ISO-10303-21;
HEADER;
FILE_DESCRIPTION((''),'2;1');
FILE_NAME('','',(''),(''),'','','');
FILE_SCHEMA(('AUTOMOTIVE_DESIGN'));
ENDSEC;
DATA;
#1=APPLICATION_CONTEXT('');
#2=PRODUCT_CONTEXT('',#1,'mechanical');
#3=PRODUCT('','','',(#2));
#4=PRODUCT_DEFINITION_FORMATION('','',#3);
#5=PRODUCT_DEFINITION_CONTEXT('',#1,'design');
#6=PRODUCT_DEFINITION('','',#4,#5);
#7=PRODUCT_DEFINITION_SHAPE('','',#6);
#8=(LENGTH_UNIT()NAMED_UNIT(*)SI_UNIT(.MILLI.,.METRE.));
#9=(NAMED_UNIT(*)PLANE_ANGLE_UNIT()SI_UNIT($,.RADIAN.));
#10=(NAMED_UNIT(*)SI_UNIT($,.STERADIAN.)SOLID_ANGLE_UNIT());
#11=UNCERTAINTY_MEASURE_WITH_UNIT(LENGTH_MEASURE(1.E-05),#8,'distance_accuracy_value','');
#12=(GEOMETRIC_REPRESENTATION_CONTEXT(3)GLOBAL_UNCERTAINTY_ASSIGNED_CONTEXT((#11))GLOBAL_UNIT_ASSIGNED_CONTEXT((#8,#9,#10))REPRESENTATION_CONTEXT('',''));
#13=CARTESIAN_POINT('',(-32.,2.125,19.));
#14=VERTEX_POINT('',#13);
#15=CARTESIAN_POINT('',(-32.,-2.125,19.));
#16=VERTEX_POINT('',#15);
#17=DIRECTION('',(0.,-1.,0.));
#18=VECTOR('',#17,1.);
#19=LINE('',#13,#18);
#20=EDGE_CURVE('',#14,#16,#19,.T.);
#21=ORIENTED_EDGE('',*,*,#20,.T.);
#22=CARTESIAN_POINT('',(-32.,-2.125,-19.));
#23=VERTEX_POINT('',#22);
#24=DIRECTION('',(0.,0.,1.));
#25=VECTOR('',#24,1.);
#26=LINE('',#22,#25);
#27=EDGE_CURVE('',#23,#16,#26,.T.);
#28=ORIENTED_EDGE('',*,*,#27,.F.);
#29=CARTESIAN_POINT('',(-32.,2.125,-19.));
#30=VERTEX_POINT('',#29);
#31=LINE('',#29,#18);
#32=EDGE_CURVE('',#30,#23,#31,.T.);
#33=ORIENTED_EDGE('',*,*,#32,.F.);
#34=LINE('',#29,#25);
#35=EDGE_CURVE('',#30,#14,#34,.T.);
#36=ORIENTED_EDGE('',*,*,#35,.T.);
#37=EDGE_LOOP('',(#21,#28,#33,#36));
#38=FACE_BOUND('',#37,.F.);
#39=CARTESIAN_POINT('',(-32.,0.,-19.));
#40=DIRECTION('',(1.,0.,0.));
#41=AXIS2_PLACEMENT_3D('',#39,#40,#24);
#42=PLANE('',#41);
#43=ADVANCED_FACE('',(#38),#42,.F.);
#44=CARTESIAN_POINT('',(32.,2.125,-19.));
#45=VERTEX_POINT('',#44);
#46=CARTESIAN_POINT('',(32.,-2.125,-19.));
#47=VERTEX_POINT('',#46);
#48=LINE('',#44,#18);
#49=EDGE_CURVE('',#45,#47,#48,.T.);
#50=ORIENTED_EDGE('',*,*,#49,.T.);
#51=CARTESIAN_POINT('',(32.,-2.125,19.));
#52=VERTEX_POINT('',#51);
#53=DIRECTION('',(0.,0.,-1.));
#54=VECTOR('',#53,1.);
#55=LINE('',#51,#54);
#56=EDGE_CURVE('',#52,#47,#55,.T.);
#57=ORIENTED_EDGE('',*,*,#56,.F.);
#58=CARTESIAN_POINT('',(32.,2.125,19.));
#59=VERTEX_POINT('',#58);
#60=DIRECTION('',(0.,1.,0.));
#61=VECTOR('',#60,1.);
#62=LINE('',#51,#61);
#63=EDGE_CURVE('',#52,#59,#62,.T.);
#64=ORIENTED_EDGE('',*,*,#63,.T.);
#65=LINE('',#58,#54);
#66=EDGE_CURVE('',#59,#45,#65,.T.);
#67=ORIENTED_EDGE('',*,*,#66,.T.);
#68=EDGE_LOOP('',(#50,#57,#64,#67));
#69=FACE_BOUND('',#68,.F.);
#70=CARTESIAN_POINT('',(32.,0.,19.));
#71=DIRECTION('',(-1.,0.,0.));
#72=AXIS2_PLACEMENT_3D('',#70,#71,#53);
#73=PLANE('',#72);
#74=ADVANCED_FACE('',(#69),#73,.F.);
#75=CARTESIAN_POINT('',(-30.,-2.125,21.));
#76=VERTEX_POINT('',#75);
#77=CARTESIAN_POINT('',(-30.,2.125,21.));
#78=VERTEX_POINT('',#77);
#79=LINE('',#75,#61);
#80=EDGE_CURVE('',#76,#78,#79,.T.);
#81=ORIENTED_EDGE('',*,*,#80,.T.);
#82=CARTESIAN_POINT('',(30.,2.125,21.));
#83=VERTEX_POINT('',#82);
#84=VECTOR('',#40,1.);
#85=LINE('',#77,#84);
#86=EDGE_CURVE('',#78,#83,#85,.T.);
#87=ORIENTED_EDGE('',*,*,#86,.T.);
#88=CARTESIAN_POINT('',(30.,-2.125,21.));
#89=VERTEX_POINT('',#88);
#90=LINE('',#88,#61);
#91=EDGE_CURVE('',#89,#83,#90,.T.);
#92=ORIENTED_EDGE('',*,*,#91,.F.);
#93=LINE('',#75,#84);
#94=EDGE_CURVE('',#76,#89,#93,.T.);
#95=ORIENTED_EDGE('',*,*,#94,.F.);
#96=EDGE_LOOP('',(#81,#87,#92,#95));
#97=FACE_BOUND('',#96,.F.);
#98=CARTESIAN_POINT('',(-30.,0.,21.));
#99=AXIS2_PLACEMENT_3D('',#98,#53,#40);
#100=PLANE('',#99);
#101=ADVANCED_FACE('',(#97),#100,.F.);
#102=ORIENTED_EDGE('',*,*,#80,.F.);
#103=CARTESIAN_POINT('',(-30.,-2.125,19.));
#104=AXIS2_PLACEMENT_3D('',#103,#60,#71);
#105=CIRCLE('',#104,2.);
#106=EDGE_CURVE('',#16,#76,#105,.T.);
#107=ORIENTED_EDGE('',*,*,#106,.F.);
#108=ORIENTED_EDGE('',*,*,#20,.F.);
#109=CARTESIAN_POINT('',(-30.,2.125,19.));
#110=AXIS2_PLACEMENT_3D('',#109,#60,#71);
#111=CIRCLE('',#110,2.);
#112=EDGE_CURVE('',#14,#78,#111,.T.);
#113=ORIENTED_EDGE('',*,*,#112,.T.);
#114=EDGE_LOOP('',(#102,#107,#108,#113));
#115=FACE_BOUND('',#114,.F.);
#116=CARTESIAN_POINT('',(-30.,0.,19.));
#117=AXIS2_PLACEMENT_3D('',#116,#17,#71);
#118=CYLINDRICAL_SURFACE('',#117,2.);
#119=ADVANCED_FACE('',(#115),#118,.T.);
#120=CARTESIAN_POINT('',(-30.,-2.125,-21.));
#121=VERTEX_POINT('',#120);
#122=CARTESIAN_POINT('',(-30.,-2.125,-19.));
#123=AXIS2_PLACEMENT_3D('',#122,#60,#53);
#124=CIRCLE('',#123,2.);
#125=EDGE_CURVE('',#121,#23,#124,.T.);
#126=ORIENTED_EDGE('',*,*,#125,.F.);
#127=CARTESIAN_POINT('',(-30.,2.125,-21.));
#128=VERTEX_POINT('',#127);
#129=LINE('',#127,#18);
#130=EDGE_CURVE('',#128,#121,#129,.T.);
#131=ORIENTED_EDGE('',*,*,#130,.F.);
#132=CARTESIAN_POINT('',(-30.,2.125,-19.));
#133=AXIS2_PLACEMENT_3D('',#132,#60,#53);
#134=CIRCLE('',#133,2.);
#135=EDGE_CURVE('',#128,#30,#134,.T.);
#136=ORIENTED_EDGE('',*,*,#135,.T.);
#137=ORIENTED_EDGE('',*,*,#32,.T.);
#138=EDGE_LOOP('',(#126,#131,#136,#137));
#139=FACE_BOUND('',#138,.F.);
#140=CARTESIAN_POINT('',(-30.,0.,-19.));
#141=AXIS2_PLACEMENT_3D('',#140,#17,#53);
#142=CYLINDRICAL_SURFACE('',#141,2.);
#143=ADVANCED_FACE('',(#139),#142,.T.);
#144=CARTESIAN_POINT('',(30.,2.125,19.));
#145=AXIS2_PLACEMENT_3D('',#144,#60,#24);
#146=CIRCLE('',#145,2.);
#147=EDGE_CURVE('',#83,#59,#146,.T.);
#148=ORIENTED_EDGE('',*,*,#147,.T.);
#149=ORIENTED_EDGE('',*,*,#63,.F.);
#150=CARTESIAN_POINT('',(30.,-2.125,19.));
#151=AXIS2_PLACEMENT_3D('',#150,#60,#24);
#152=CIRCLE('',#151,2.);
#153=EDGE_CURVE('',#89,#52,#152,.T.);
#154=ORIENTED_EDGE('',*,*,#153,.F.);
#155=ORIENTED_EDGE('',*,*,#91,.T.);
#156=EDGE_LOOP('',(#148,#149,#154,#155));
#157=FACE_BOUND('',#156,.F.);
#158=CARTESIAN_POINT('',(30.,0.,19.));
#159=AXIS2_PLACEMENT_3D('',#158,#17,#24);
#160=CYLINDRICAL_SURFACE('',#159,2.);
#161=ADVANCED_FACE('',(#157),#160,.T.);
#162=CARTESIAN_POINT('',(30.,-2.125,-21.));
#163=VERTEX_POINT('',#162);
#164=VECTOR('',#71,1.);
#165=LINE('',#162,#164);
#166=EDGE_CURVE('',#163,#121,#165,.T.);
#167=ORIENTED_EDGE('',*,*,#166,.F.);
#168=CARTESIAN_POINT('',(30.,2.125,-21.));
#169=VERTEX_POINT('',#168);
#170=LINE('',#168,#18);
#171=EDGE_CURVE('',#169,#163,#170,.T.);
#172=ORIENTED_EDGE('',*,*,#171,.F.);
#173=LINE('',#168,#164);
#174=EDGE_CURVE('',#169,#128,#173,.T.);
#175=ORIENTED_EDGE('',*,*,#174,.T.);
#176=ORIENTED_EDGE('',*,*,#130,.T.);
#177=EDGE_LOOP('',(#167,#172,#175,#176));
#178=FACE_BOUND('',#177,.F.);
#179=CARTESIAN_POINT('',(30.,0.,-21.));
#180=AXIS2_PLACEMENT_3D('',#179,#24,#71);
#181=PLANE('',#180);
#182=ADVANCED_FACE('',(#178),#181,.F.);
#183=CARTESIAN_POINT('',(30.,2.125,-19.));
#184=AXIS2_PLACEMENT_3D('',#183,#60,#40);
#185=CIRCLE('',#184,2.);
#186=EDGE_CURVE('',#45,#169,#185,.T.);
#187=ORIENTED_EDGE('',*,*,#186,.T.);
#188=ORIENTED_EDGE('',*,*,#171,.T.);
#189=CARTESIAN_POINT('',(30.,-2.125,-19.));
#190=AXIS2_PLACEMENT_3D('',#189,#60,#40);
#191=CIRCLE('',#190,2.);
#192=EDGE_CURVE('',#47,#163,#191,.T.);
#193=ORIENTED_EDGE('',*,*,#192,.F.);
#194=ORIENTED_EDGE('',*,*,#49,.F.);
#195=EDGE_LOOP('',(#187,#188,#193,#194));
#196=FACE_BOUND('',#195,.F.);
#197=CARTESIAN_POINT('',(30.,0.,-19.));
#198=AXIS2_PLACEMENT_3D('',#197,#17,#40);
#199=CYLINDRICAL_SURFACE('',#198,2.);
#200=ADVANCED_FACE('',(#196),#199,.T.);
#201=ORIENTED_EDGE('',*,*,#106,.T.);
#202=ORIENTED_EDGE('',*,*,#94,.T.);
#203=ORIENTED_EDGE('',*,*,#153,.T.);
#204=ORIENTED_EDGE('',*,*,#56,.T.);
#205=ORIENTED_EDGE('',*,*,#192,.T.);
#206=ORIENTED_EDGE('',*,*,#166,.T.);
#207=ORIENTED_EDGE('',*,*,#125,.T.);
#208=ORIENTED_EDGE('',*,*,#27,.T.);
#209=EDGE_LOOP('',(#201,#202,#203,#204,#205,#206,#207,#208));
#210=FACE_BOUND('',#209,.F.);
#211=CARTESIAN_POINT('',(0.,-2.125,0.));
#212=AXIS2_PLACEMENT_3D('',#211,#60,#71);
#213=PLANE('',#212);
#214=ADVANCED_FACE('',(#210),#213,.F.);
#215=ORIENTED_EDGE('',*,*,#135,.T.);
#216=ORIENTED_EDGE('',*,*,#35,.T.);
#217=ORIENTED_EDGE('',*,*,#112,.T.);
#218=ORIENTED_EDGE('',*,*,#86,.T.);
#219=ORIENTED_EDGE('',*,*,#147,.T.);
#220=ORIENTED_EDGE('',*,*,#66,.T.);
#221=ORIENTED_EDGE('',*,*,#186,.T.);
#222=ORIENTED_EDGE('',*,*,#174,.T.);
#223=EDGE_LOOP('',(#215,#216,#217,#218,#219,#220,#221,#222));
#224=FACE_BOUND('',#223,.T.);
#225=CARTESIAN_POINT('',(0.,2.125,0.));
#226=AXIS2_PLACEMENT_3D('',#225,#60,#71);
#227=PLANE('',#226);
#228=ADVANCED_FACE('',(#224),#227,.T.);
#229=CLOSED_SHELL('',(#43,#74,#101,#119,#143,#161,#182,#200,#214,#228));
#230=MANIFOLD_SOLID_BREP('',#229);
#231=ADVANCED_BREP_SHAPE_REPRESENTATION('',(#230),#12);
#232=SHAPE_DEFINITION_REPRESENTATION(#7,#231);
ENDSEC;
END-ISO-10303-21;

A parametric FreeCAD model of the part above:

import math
import FreeCAD as App
import Part
import Sketcher

V = App.Vector

doc = App.newDocument("Part")
body = doc.addObject("PartDesign::Body", "Body")

# Sketch on XZ plane
sketch1 = body.newObject("Sketcher::SketchObject", "Sketch")
sketch1.AttachmentSupport = (doc.getObject("XZ_Plane"), [""])
sketch1.MapMode = "FlatFace"
sketch1.addGeometry([
    Part.ArcOfCircle(Part.Circle(V(-30, 19, 0), V(0, 0, 1), 2), math.radians(90), math.radians(180)),  # 0
    Part.LineSegment(V(-30, 21, 0), V(30, 21, 0)),  # 1
    Part.ArcOfCircle(Part.Circle(V(30, 19, 0), V(0, 0, 1), 2), math.radians(0), math.radians(90)),  # 2
    Part.LineSegment(V(32, 19, 0), V(32, -19, 0)),  # 3
    Part.ArcOfCircle(Part.Circle(V(30, -19, 0), V(0, 0, 1), 2), math.radians(-90), math.radians(0)),  # 4
    Part.LineSegment(V(30, -21, 0), V(-30, -21, 0)),  # 5
    Part.ArcOfCircle(Part.Circle(V(-30, -19, 0), V(0, 0, 1), 2), math.radians(180), math.radians(270)),  # 6
    Part.LineSegment(V(-32, -19, 0), V(-32, 19, 0)),  # 7
], False)
sketch1.addConstraint([
    Sketcher.Constraint("Tangent", 0, 1, 1, 1),
    Sketcher.Constraint("Tangent", 1, 2, 2, 2),
    Sketcher.Constraint("Tangent", 2, 1, 3, 1),
    Sketcher.Constraint("Tangent", 3, 2, 4, 2),
    Sketcher.Constraint("Tangent", 4, 1, 5, 1),
    Sketcher.Constraint("Tangent", 5, 2, 6, 2),
    Sketcher.Constraint("Tangent", 6, 1, 7, 1),
    Sketcher.Constraint("Tangent", 7, 2, 0, 2),
    Sketcher.Constraint("Horizontal", 1),
    Sketcher.Constraint("Vertical", 3),
    Sketcher.Constraint("Horizontal", 5),
    Sketcher.Constraint("Vertical", 7),
    Sketcher.Constraint("Equal", 0, 2),
    Sketcher.Constraint("Equal", 2, 4),
    Sketcher.Constraint("Equal", 4, 6),
    Sketcher.Constraint("Symmetric", 0, 3, 4, 3, -1, 1),
    Sketcher.Constraint("Radius", 0, 2.0),
    Sketcher.Constraint("DistanceY", 4, 1, 1, 2, 42.0),
    Sketcher.Constraint("DistanceX", 1, 1, 1, 2, 60.0),
])
pad1 = body.newObject("PartDesign::Pad", "Pad")
pad1.Profile = sketch1
pad1.Length = 4.25
pad1.Midplane = True

doc.recompute()
